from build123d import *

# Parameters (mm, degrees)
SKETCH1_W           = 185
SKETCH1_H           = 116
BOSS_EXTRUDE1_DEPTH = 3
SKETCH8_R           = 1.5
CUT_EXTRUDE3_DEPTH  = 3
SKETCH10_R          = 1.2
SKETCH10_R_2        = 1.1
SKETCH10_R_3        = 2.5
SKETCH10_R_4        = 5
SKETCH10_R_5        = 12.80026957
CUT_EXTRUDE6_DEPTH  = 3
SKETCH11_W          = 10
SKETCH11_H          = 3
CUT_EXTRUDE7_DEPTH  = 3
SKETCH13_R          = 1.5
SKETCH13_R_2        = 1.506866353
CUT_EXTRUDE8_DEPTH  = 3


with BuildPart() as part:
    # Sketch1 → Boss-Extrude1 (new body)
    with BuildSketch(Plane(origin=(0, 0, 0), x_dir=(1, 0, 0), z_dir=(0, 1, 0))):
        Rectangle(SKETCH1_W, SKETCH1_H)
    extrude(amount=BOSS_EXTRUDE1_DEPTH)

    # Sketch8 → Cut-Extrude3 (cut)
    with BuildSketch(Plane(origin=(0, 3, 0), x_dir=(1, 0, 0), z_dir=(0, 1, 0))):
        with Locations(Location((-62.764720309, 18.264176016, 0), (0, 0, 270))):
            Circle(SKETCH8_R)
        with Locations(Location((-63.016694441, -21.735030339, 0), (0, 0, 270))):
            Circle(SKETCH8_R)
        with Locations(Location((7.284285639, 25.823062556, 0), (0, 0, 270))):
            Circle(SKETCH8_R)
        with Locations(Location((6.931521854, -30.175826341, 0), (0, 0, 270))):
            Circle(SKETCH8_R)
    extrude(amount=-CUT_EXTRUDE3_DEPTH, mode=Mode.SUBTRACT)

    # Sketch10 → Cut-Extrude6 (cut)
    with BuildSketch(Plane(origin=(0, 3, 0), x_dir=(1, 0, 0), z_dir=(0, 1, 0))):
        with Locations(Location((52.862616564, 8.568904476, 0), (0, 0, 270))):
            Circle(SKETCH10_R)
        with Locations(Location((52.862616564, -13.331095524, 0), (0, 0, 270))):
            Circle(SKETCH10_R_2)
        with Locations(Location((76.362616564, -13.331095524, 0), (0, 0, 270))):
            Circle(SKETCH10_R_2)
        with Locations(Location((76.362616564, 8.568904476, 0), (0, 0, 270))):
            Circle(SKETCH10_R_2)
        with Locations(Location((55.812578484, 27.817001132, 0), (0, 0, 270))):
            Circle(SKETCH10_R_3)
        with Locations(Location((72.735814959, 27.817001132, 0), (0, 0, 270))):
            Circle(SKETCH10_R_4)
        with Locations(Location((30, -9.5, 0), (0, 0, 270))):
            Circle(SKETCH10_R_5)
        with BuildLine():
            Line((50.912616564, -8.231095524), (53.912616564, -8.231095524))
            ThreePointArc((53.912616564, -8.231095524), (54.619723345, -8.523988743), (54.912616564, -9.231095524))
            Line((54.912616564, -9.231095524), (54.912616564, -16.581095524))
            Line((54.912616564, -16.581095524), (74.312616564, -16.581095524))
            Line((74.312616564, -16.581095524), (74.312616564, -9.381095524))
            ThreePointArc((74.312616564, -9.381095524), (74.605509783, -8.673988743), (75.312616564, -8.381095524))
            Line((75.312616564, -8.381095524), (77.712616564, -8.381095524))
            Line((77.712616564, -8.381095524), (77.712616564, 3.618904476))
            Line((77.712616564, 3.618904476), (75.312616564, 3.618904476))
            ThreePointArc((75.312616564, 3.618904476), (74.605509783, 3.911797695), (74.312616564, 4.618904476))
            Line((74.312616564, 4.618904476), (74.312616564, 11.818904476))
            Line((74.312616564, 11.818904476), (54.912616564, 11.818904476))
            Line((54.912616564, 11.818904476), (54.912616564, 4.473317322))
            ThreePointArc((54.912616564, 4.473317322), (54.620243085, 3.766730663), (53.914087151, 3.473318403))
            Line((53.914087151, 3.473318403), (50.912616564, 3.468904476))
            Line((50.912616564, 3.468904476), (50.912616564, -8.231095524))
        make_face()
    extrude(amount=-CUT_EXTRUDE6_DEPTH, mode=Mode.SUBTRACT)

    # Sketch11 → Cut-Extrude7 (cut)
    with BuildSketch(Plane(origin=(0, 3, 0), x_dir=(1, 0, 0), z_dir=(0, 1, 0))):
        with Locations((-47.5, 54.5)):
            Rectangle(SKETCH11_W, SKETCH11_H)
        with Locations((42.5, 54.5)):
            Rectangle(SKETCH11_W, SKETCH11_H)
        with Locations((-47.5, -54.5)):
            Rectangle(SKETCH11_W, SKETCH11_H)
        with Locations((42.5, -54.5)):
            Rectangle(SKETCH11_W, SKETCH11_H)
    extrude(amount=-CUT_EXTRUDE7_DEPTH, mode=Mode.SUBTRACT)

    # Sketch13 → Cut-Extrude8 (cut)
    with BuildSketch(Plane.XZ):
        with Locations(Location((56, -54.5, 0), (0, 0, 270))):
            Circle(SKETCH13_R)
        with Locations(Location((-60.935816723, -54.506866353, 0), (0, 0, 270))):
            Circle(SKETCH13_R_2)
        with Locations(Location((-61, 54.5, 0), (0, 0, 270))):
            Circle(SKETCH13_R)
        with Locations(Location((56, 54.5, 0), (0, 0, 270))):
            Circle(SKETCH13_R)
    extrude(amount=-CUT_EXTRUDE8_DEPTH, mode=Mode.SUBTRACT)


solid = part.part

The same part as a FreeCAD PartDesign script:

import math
import FreeCAD as App
import Part
import Sketcher

doc = App.newDocument("Part")
body = doc.addObject("PartDesign::Body", "Body")

# Sketch on XZ plane
sketch1 = body.newObject("Sketcher::SketchObject", "Sketch")
sketch1.AttachmentSupport = (doc.getObject("XZ_Plane"), [""])
sketch1.MapMode = "FlatFace"
sketch1.addGeometry(Part.LineSegment(App.Vector(-92.5, -58, 0), App.Vector(-92.5, 58, 0)), False)
sketch1.addGeometry(Part.LineSegment(App.Vector(-92.5, 58, 0), App.Vector(92.5, 58, 0)), False)
sketch1.addGeometry(Part.LineSegment(App.Vector(92.5, 58, 0), App.Vector(92.5, -58, 0)), False)
sketch1.addGeometry(Part.LineSegment(App.Vector(92.5, -58, 0), App.Vector(-92.5, -58, 0)), False)
sketch1.addConstraint(Sketcher.Constraint("Coincident", 0, 2, 1, 1))
sketch1.addConstraint(Sketcher.Constraint("Coincident", 1, 2, 2, 1))
sketch1.addConstraint(Sketcher.Constraint("Coincident", 2, 2, 3, 1))
sketch1.addConstraint(Sketcher.Constraint("Coincident", 3, 2, 0, 1))
sketch1.addConstraint(Sketcher.Constraint("Vertical", 0))
sketch1.addConstraint(Sketcher.Constraint("Horizontal", 1))
sketch1.addConstraint(Sketcher.Constraint("Vertical", 2))
sketch1.addConstraint(Sketcher.Constraint("Horizontal", 3))
sketch1.addConstraint(Sketcher.Constraint("Symmetric", 0, 2, 2, 2, -1, 1))
sketch1.addConstraint(Sketcher.Constraint("DistanceX", 1, 1, 1, 2, 185.0))
sketch1.addConstraint(Sketcher.Constraint("DistanceY", 0, 1, 0, 2, 116.0))
pad1 = body.newObject("PartDesign::Pad", "Pad")
pad1.Profile = sketch1
pad1.Length = 3
pad1.Reversed = True

# Sketch on XZ plane
sketch2 = body.newObject("Sketcher::SketchObject", "Sketch001")
sketch2.AttachmentSupport = (doc.getObject("XZ_Plane"), [""])
sketch2.MapMode = "FlatFace"
sketch2.AttachmentOffset = App.Placement(App.Vector(0, 0, -3), App.Rotation())
sketch2.addGeometry(Part.Circle(App.Vector(-62.76472, -18.264176, 0), App.Vector(0, 0, 1), 1.5), False)
sketch2.addGeometry(Part.Circle(App.Vector(-63.016694, 21.73503, 0), App.Vector(0, 0, 1), 1.5), False)
sketch2.addGeometry(Part.Circle(App.Vector(7.284286, -25.823063, 0), App.Vector(0, 0, 1), 1.5), False)
sketch2.addGeometry(Part.Circle(App.Vector(6.931522, 30.175826, 0), App.Vector(0, 0, 1), 1.5), False)
sketch2.addConstraint(Sketcher.Constraint("Equal", 0, 1))
sketch2.addConstraint(Sketcher.Constraint("Equal", 1, 2))
sketch2.addConstraint(Sketcher.Constraint("Equal", 2, 3))
sketch2.addConstraint(Sketcher.Constraint("Diameter", 0, 3.0))
sketch2.addConstraint(Sketcher.Constraint("DistanceX", 0, 3, -1, 1, 62.76472))
sketch2.addConstraint(Sketcher.Constraint("DistanceY", -1, 1, 1, 3, 21.73503))
sketch2.addConstraint(Sketcher.Constraint("DistanceX", -1, 1, 3, 3, 6.931522))
sketch2.addConstraint(Sketcher.Constraint("DistanceX", 1, 3, 2, 3, 70.30098))
sketch2.addConstraint(Sketcher.Constraint("DistanceY", 2, 3, 3, 3, 55.998889))
sketch2.addConstraint(Sketcher.Constraint("DistanceY", 0, 3, -1, 1, 18.264176))
sketch2.addConstraint(Sketcher.Constraint("DistanceX", 1, 3, -1, 1, 63.016694))
sketch2.addConstraint(Sketcher.Constraint("DistanceY", 2, 3, -1, 1, 25.823063))
pocket1 = body.newObject("PartDesign::Pocket", "Pocket")
pocket1.Profile = sketch2
pocket1.Length = 3
pocket1.Reversed = True

# Sketch on XZ plane
sketch3 = body.newObject("Sketcher::SketchObject", "Sketch002")
sketch3.AttachmentSupport = (doc.getObject("XZ_Plane"), [""])
sketch3.MapMode = "FlatFace"
sketch3.AttachmentOffset = App.Placement(App.Vector(0, 0, -3), App.Rotation())
sketch3.addGeometry(Part.Circle(App.Vector(52.862617, -8.568904, 0), App.Vector(0, 0, 1), 1.2), False)
sketch3.addGeometry(Part.Circle(App.Vector(52.862617, 13.331096, 0), App.Vector(0, 0, 1), 1.1), False)
sketch3.addGeometry(Part.Circle(App.Vector(76.362617, 13.331096, 0), App.Vector(0, 0, 1), 1.1), False)
sketch3.addGeometry(Part.Circle(App.Vector(76.362617, -8.568904, 0), App.Vector(0, 0, 1), 1.1), False)
sketch3.addGeometry(Part.Circle(App.Vector(55.812578, -27.817001, 0), App.Vector(0, 0, 1), 2.5), False)
sketch3.addGeometry(Part.Circle(App.Vector(72.735815, -27.817001, 0), App.Vector(0, 0, 1), 5), False)
sketch3.addGeometry(Part.Circle(App.Vector(30, 9.5, 0), App.Vector(0, 0, 1), 12.80027), False)
sketch3.addGeometry(Part.LineSegment(App.Vector(50.912617, 8.231096, 0), App.Vector(53.912617, 8.231096, 0)), False)
sketch3.addGeometry(Part.ArcOfCircle(Part.Circle(App.Vector(53.912617, 9.231096, 0), App.Vector(0, 0, 1), 1), math.radians(-90), math.radians(0)), False)
sketch3.addGeometry(Part.LineSegment(App.Vector(54.912617, 9.231096, 0), App.Vector(54.912617, 16.581096, 0)), False)
sketch3.addGeometry(Part.LineSegment(App.Vector(54.912617, 16.581096, 0), App.Vector(74.312617, 16.581096, 0)), False)
sketch3.addGeometry(Part.LineSegment(App.Vector(74.312617, 16.581096, 0), App.Vector(74.312617, 9.381096, 0)), False)
sketch3.addGeometry(Part.ArcOfCircle(Part.Circle(App.Vector(75.312617, 9.381096, 0), App.Vector(0, 0, 1), 1), math.radians(-180), math.radians(-90)), False)
sketch3.addGeometry(Part.LineSegment(App.Vector(75.312617, 8.381096, 0), App.Vector(77.712617, 8.381096, 0)), False)
sketch3.addGeometry(Part.LineSegment(App.Vector(77.712617, 8.381096, 0), App.Vector(77.712617, -3.618904, 0)), False)
sketch3.addGeometry(Part.LineSegment(App.Vector(77.712617, -3.618904, 0), App.Vector(75.312617, -3.618904, 0)), False)
sketch3.addGeometry(Part.ArcOfCircle(Part.Circle(App.Vector(75.312617, -4.618904, 0), App.Vector(0, 0, 1), 1), math.radians(90), math.radians(180)), False)
sketch3.addGeometry(Part.LineSegment(App.Vector(74.312617, -4.618904, 0), App.Vector(74.312617, -11.818904, 0)), False)
sketch3.addGeometry(Part.LineSegment(App.Vector(74.312617, -11.818904, 0), App.Vector(54.912617, -11.818904, 0)), False)
sketch3.addGeometry(Part.LineSegment(App.Vector(54.912617, -11.818904, 0), App.Vector(54.912617, -4.473317, 0)), False)
sketch3.addGeometry(Part.ArcOfCircle(Part.Circle(App.Vector(53.912617, -4.473317, 0), App.Vector(0, 0, 1), 1), math.radians(0), math.radians(89.915741)), False)
sketch3.addGeometry(Part.LineSegment(App.Vector(53.914087, -3.473318, 0), App.Vector(50.912617, -3.468904, 0)), False)
sketch3.addGeometry(Part.LineSegment(App.Vector(50.912617, -3.468904, 0), App.Vector(50.912617, 8.231096, 0)), False)
sketch3.addConstraint(Sketcher.Constraint("Tangent", 7, 2, 8, 1))
sketch3.addConstraint(Sketcher.Constraint("Tangent", 8, 2, 9, 1))
sketch3.addConstraint(Sketcher.Constraint("Coincident", 9, 2, 10, 1))
sketch3.addConstraint(Sketcher.Constraint("Coincident", 10, 2, 11, 1))
sketch3.addConstraint(Sketcher.Constraint("Tangent", 11, 2, 12, 1))
sketch3.addConstraint(Sketcher.Constraint("Tangent", 12, 2, 13, 1))
sketch3.addConstraint(Sketcher.Constraint("Coincident", 13, 2, 14, 1))
sketch3.addConstraint(Sketcher.Constraint("Coincident", 14, 2, 15, 1))
sketch3.addConstraint(Sketcher.Constraint("Tangent", 15, 2, 16, 1))
sketch3.addConstraint(Sketcher.Constraint("Tangent", 16, 2, 17, 1))
sketch3.addConstraint(Sketcher.Constraint("Coincident", 17, 2, 18, 1))
sketch3.addConstraint(Sketcher.Constraint("Coincident", 18, 2, 19, 1))
sketch3.addConstraint(Sketcher.Constraint("Tangent", 19, 2, 20, 1))
sketch3.addConstraint(Sketcher.Constraint("Tangent", 20, 2, 21, 1))
sketch3.addConstraint(Sketcher.Constraint("Coincident", 21, 2, 22, 1))
sketch3.addConstraint(Sketcher.Constraint("Coincident", 22, 2, 7, 1))
sketch3.addConstraint(Sketcher.Constraint("Horizontal", 7))
sketch3.addConstraint(Sketcher.Constraint("Vertical", 9))
sketch3.addConstraint(Sketcher.Constraint("Horizontal", 10))
sketch3.addConstraint(Sketcher.Constraint("Vertical", 11))
sketch3.addConstraint(Sketcher.Constraint("Horizontal", 13))
sketch3.addConstraint(Sketcher.Constraint("Vertical", 14))
sketch3.addConstraint(Sketcher.Constraint("Horizontal", 15))
sketch3.addConstraint(Sketcher.Constraint("Vertical", 17))
sketch3.addConstraint(Sketcher.Constraint("Horizontal", 18))
sketch3.addConstraint(Sketcher.Constraint("Vertical", 19))
sketch3.addConstraint(Sketcher.Constraint("Vertical", 22))
sketch3.addConstraint(Sketcher.Constraint("Equal", 1, 2))
sketch3.addConstraint(Sketcher.Constraint("Equal", 2, 3))
sketch3.addConstraint(Sketcher.Constraint("Equal", 8, 12))
sketch3.addConstraint(Sketcher.Constraint("Equal", 12, 16))
sketch3.addConstraint(Sketcher.Constraint("Equal", 16, 20))
sketch3.addConstraint(Sketcher.Constraint("Horizontal", 1, 3, 2, 3))
sketch3.addConstraint(Sketcher.Constraint("Horizontal", 0, 3, 3, 3))
sketch3.addConstraint(Sketcher.Constraint("Horizontal", 4, 3, 5, 3))
sketch3.addConstraint(Sketcher.Constraint("Vertical", 0, 3, 1, 3))
sketch3.addConstraint(Sketcher.Constraint("Vertical", 2, 3, 3, 3))
sketch3.addConstraint(Sketcher.Constraint("Vertical", 12, 3, 16, 3))
sketch3.addConstraint(Sketcher.Constraint("Vertical", 8, 3, 20, 3))
sketch3.addConstraint(Sketcher.Constraint("Equal", 11, 17))
sketch3.addConstraint(Sketcher.Constraint("Diameter", 4, 5.0))
sketch3.addConstraint(Sketcher.Constraint("Diameter", 5, 10.0))
sketch3.addConstraint(Sketcher.Constraint("Radius", 8, 1.0))
sketch3.addConstraint(Sketcher.Constraint("Diameter", 0, 2.4))
sketch3.addConstraint(Sketcher.Constraint("Diameter", 1, 2.2))
sketch3.addConstraint(Sketcher.Constraint("DistanceX", 7, 1, 7, 2, 3.0))
sketch3.addConstraint(Sketcher.Constraint("DistanceY", 14, 2, 14, 1, 12.0))
sketch3.addConstraint(Sketcher.Constraint("DistanceX", 10, 1, 10, 2, 19.4))
sketch3.addConstraint(Sketcher.Constraint("DistanceX", 13, 1, 13, 2, 2.4))
sketch3.addConstraint(Sketcher.Constraint("DistanceY", 11, 2, 11, 1, 7.2))
sketch3.addConstraint(Sketcher.Constraint("DistanceY", 22, 1, 22, 2, 11.7))
sketch3.addConstraint(Sketcher.Constraint("DistanceX", -1, 1, 6, 3, 30.0))
sketch3.addConstraint(Sketcher.Constraint("DistanceY", 9, 1, 9, 2, 7.35))
sketch3.addConstraint(Sketcher.Constraint("DistanceY", -1, 1, 6, 3, 9.5))
sketch3.addConstraint(Sketcher.Constraint("DistanceY", 0, 3, 1, 3, 21.9))
sketch3.addConstraint(Sketcher.Constraint("DistanceX", 1, 3, 2, 3, 23.5))
sketch3.addConstraint(Sketcher.Constraint("DistanceY", 8, 3, 1, 3, 4.1))
sketch3.addConstraint(Sketcher.Constraint("Diameter", 6, 25.600539))
sketch3.addConstraint(Sketcher.Constraint("DistanceX", 1, 3, 8, 3, 1.05))
sketch3.addConstraint(Sketcher.Constraint("DistanceY", 4, 3, -1, 1, 27.817001))
sketch3.addConstraint(Sketcher.Constraint("DistanceX", 5, 3, 3, 3, 3.626802))
sketch3.addConstraint(Sketcher.Constraint("DistanceY", 19, 1, 19, 2, 7.345587))
sketch3.addConstraint(Sketcher.Constraint("DistanceX", -1, 1, 4, 3, 55.812578))
sketch3.addConstraint(Sketcher.Constraint("DistanceY", 20, 2, -1, 1, 3.473318))
sketch3.addConstraint(Sketcher.Constraint("DistanceX", 0, 3, 4, 3, 2.949962))
pocket2 = body.newObject("PartDesign::Pocket", "Pocket001")
pocket2.Profile = sketch3
pocket2.Length = 3
pocket2.Reversed = True

# Sketch on XZ plane
sketch4 = body.newObject("Sketcher::SketchObject", "Sketch003")
sketch4.AttachmentSupport = (doc.getObject("XZ_Plane"), [""])
sketch4.MapMode = "FlatFace"
sketch4.AttachmentOffset = App.Placement(App.Vector(0, 0, -3), App.Rotation())
sketch4.addGeometry(Part.LineSegment(App.Vector(-52.5, -56, 0), App.Vector(-52.5, -53, 0)), False)
sketch4.addGeometry(Part.LineSegment(App.Vector(-52.5, -53, 0), App.Vector(-42.5, -53, 0)), False)
sketch4.addGeometry(Part.LineSegment(App.Vector(-42.5, -53, 0), App.Vector(-42.5, -56, 0)), False)
sketch4.addGeometry(Part.LineSegment(App.Vector(-42.5, -56, 0), App.Vector(-52.5, -56, 0)), False)
sketch4.addGeometry(Part.LineSegment(App.Vector(37.5, -56, 0), App.Vector(37.5, -53, 0)), False)
sketch4.addGeometry(Part.LineSegment(App.Vector(37.5, -53, 0), App.Vector(47.5, -53, 0)), False)
sketch4.addGeometry(Part.LineSegment(App.Vector(47.5, -53, 0), App.Vector(47.5, -56, 0)), False)
sketch4.addGeometry(Part.LineSegment(App.Vector(47.5, -56, 0), App.Vector(37.5, -56, 0)), False)
sketch4.addGeometry(Part.LineSegment(App.Vector(-52.5, 53, 0), App.Vector(-52.5, 56, 0)), False)
sketch4.addGeometry(Part.LineSegment(App.Vector(-52.5, 56, 0), App.Vector(-42.5, 56, 0)), False)
sketch4.addGeometry(Part.LineSegment(App.Vector(-42.5, 56, 0), App.Vector(-42.5, 53, 0)), False)
sketch4.addGeometry(Part.LineSegment(App.Vector(-42.5, 53, 0), App.Vector(-52.5, 53, 0)), False)
sketch4.addGeometry(Part.LineSegment(App.Vector(37.5, 53, 0), App.Vector(37.5, 56, 0)), False)
sketch4.addGeometry(Part.LineSegment(App.Vector(37.5, 56, 0), App.Vector(47.5, 56, 0)), False)
sketch4.addGeometry(Part.LineSegment(App.Vector(47.5, 56, 0), App.Vector(47.5, 53, 0)), False)
sketch4.addGeometry(Part.LineSegment(App.Vector(47.5, 53, 0), App.Vector(37.5, 53, 0)), False)
sketch4.addConstraint(Sketcher.Constraint("Coincident", 0, 2, 1, 1))
sketch4.addConstraint(Sketcher.Constraint("Coincident", 1, 2, 2, 1))
sketch4.addConstraint(Sketcher.Constraint("Coincident", 2, 2, 3, 1))
sketch4.addConstraint(Sketcher.Constraint("Coincident", 3, 2, 0, 1))
sketch4.addConstraint(Sketcher.Constraint("Coincident", 4, 2, 5, 1))
sketch4.addConstraint(Sketcher.Constraint("Coincident", 5, 2, 6, 1))
sketch4.addConstraint(Sketcher.Constraint("Coincident", 6, 2, 7, 1))
sketch4.addConstraint(Sketcher.Constraint("Coincident", 7, 2, 4, 1))
sketch4.addConstraint(Sketcher.Constraint("Coincident", 8, 2, 9, 1))
sketch4.addConstraint(Sketcher.Constraint("Coincident", 9, 2, 10, 1))
sketch4.addConstraint(Sketcher.Constraint("Coincident", 10, 2, 11, 1))
sketch4.addConstraint(Sketcher.Constraint("Coincident", 11, 2, 8, 1))
sketch4.addConstraint(Sketcher.Constraint("Coincident", 12, 2, 13, 1))
sketch4.addConstraint(Sketcher.Constraint("Coincident", 13, 2, 14, 1))
sketch4.addConstraint(Sketcher.Constraint("Coincident", 14, 2, 15, 1))
sketch4.addConstraint(Sketcher.Constraint("Coincident", 15, 2, 12, 1))
sketch4.addConstraint(Sketcher.Constraint("Vertical", 0))
sketch4.addConstraint(Sketcher.Constraint("Horizontal", 1))
sketch4.addConstraint(Sketcher.Constraint("Vertical", 2))
sketch4.addConstraint(Sketcher.Constraint("Horizontal", 3))
sketch4.addConstraint(Sketcher.Constraint("Vertical", 4))
sketch4.addConstraint(Sketcher.Constraint("Horizontal", 5))
sketch4.addConstraint(Sketcher.Constraint("Vertical", 6))
sketch4.addConstraint(Sketcher.Constraint("Horizontal", 7))
sketch4.addConstraint(Sketcher.Constraint("Vertical", 8))
sketch4.addConstraint(Sketcher.Constraint("Horizontal", 9))
sketch4.addConstraint(Sketcher.Constraint("Vertical", 10))
sketch4.addConstraint(Sketcher.Constraint("Horizontal", 11))
sketch4.addConstraint(Sketcher.Constraint("Vertical", 12))
sketch4.addConstraint(Sketcher.Constraint("Horizontal", 13))
sketch4.addConstraint(Sketcher.Constraint("Vertical", 14))
sketch4.addConstraint(Sketcher.Constraint("Horizontal", 15))
sketch4.addConstraint(Sketcher.Constraint("Symmetric", 3, 2, 8, 2, -1))
sketch4.addConstraint(Sketcher.Constraint("Symmetric", 1, 2, 10, 2, -1))
sketch4.addConstraint(Sketcher.Constraint("Symmetric", 7, 2, 12, 2, -1))
sketch4.addConstraint(Sketcher.Constraint("Symmetric", 5, 2, 14, 2, -1))
sketch4.addConstraint(Sketcher.Constraint("Horizontal", 1, 2, 4, 2))
sketch4.addConstraint(Sketcher.Constraint("Horizontal", 3, 2, 6, 2))
sketch4.addConstraint(Sketcher.Constraint("Equal", 3, 5))
sketch4.addConstraint(Sketcher.Constraint("DistanceX", 1, 1, 1, 2, 10.0))
sketch4.addConstraint(Sketcher.Constraint("DistanceY", 0, 1, 0, 2, 3.0))
sketch4.addConstraint(Sketcher.Constraint("DistanceY", 0, 2, -1, 1, 53.0))
sketch4.addConstraint(Sketcher.Constraint("DistanceX", 1, 2, 4, 2, 80.0))
sketch4.addConstraint(Sketcher.Constraint("DistanceX", 0, 2, -1, 1, 52.5))
pocket3 = body.newObject("PartDesign::Pocket", "Pocket002")
pocket3.Profile = sketch4
pocket3.Length = 3
pocket3.Reversed = True

# Sketch on XZ plane
sketch5 = body.newObject("Sketcher::SketchObject", "Sketch004")
sketch5.AttachmentSupport = (doc.getObject("XZ_Plane"), [""])
sketch5.MapMode = "FlatFace"
sketch5.addGeometry(Part.Circle(App.Vector(56, -54.5, 0), App.Vector(0, 0, 1), 1.5), False)
sketch5.addGeometry(Part.Circle(App.Vector(-60.935817, -54.506866, 0), App.Vector(0, 0, 1), 1.506866), False)
sketch5.addGeometry(Part.Circle(App.Vector(-61, 54.5, 0), App.Vector(0, 0, 1), 1.5), False)
sketch5.addGeometry(Part.Circle(App.Vector(56, 54.5, 0), App.Vector(0, 0, 1), 1.5), False)
sketch5.addConstraint(Sketcher.Constraint("Equal", 0, 2))
sketch5.addConstraint(Sketcher.Constraint("Equal", 2, 3))
sketch5.addConstraint(Sketcher.Constraint("Symmetric", 0, 3, 3, 3, -1))
sketch5.addConstraint(Sketcher.Constraint("Horizontal", 2, 3, 3, 3))
sketch5.addConstraint(Sketcher.Constraint("Diameter", 0, 3.0))
sketch5.addConstraint(Sketcher.Constraint("DistanceX", -1, 1, 0, 3, 56.0))
sketch5.addConstraint(Sketcher.Constraint("DistanceX", 2, 3, -1, 1, 61.0))
sketch5.addConstraint(Sketcher.Constraint("DistanceY", 0, 3, 2, 3, 109.0))
sketch5.addConstraint(Sketcher.Constraint("Diameter", 1, 3.013733))
sketch5.addConstraint(Sketcher.Constraint("DistanceX", 1, 3, -1, 1, 60.935817))
sketch5.addConstraint(Sketcher.Constraint("DistanceY", 1, 3, -1, 1, 54.506866))
pocket4 = body.newObject("PartDesign::Pocket", "Pocket003")
pocket4.Profile = sketch5
pocket4.Length = 3

doc.recompute()
